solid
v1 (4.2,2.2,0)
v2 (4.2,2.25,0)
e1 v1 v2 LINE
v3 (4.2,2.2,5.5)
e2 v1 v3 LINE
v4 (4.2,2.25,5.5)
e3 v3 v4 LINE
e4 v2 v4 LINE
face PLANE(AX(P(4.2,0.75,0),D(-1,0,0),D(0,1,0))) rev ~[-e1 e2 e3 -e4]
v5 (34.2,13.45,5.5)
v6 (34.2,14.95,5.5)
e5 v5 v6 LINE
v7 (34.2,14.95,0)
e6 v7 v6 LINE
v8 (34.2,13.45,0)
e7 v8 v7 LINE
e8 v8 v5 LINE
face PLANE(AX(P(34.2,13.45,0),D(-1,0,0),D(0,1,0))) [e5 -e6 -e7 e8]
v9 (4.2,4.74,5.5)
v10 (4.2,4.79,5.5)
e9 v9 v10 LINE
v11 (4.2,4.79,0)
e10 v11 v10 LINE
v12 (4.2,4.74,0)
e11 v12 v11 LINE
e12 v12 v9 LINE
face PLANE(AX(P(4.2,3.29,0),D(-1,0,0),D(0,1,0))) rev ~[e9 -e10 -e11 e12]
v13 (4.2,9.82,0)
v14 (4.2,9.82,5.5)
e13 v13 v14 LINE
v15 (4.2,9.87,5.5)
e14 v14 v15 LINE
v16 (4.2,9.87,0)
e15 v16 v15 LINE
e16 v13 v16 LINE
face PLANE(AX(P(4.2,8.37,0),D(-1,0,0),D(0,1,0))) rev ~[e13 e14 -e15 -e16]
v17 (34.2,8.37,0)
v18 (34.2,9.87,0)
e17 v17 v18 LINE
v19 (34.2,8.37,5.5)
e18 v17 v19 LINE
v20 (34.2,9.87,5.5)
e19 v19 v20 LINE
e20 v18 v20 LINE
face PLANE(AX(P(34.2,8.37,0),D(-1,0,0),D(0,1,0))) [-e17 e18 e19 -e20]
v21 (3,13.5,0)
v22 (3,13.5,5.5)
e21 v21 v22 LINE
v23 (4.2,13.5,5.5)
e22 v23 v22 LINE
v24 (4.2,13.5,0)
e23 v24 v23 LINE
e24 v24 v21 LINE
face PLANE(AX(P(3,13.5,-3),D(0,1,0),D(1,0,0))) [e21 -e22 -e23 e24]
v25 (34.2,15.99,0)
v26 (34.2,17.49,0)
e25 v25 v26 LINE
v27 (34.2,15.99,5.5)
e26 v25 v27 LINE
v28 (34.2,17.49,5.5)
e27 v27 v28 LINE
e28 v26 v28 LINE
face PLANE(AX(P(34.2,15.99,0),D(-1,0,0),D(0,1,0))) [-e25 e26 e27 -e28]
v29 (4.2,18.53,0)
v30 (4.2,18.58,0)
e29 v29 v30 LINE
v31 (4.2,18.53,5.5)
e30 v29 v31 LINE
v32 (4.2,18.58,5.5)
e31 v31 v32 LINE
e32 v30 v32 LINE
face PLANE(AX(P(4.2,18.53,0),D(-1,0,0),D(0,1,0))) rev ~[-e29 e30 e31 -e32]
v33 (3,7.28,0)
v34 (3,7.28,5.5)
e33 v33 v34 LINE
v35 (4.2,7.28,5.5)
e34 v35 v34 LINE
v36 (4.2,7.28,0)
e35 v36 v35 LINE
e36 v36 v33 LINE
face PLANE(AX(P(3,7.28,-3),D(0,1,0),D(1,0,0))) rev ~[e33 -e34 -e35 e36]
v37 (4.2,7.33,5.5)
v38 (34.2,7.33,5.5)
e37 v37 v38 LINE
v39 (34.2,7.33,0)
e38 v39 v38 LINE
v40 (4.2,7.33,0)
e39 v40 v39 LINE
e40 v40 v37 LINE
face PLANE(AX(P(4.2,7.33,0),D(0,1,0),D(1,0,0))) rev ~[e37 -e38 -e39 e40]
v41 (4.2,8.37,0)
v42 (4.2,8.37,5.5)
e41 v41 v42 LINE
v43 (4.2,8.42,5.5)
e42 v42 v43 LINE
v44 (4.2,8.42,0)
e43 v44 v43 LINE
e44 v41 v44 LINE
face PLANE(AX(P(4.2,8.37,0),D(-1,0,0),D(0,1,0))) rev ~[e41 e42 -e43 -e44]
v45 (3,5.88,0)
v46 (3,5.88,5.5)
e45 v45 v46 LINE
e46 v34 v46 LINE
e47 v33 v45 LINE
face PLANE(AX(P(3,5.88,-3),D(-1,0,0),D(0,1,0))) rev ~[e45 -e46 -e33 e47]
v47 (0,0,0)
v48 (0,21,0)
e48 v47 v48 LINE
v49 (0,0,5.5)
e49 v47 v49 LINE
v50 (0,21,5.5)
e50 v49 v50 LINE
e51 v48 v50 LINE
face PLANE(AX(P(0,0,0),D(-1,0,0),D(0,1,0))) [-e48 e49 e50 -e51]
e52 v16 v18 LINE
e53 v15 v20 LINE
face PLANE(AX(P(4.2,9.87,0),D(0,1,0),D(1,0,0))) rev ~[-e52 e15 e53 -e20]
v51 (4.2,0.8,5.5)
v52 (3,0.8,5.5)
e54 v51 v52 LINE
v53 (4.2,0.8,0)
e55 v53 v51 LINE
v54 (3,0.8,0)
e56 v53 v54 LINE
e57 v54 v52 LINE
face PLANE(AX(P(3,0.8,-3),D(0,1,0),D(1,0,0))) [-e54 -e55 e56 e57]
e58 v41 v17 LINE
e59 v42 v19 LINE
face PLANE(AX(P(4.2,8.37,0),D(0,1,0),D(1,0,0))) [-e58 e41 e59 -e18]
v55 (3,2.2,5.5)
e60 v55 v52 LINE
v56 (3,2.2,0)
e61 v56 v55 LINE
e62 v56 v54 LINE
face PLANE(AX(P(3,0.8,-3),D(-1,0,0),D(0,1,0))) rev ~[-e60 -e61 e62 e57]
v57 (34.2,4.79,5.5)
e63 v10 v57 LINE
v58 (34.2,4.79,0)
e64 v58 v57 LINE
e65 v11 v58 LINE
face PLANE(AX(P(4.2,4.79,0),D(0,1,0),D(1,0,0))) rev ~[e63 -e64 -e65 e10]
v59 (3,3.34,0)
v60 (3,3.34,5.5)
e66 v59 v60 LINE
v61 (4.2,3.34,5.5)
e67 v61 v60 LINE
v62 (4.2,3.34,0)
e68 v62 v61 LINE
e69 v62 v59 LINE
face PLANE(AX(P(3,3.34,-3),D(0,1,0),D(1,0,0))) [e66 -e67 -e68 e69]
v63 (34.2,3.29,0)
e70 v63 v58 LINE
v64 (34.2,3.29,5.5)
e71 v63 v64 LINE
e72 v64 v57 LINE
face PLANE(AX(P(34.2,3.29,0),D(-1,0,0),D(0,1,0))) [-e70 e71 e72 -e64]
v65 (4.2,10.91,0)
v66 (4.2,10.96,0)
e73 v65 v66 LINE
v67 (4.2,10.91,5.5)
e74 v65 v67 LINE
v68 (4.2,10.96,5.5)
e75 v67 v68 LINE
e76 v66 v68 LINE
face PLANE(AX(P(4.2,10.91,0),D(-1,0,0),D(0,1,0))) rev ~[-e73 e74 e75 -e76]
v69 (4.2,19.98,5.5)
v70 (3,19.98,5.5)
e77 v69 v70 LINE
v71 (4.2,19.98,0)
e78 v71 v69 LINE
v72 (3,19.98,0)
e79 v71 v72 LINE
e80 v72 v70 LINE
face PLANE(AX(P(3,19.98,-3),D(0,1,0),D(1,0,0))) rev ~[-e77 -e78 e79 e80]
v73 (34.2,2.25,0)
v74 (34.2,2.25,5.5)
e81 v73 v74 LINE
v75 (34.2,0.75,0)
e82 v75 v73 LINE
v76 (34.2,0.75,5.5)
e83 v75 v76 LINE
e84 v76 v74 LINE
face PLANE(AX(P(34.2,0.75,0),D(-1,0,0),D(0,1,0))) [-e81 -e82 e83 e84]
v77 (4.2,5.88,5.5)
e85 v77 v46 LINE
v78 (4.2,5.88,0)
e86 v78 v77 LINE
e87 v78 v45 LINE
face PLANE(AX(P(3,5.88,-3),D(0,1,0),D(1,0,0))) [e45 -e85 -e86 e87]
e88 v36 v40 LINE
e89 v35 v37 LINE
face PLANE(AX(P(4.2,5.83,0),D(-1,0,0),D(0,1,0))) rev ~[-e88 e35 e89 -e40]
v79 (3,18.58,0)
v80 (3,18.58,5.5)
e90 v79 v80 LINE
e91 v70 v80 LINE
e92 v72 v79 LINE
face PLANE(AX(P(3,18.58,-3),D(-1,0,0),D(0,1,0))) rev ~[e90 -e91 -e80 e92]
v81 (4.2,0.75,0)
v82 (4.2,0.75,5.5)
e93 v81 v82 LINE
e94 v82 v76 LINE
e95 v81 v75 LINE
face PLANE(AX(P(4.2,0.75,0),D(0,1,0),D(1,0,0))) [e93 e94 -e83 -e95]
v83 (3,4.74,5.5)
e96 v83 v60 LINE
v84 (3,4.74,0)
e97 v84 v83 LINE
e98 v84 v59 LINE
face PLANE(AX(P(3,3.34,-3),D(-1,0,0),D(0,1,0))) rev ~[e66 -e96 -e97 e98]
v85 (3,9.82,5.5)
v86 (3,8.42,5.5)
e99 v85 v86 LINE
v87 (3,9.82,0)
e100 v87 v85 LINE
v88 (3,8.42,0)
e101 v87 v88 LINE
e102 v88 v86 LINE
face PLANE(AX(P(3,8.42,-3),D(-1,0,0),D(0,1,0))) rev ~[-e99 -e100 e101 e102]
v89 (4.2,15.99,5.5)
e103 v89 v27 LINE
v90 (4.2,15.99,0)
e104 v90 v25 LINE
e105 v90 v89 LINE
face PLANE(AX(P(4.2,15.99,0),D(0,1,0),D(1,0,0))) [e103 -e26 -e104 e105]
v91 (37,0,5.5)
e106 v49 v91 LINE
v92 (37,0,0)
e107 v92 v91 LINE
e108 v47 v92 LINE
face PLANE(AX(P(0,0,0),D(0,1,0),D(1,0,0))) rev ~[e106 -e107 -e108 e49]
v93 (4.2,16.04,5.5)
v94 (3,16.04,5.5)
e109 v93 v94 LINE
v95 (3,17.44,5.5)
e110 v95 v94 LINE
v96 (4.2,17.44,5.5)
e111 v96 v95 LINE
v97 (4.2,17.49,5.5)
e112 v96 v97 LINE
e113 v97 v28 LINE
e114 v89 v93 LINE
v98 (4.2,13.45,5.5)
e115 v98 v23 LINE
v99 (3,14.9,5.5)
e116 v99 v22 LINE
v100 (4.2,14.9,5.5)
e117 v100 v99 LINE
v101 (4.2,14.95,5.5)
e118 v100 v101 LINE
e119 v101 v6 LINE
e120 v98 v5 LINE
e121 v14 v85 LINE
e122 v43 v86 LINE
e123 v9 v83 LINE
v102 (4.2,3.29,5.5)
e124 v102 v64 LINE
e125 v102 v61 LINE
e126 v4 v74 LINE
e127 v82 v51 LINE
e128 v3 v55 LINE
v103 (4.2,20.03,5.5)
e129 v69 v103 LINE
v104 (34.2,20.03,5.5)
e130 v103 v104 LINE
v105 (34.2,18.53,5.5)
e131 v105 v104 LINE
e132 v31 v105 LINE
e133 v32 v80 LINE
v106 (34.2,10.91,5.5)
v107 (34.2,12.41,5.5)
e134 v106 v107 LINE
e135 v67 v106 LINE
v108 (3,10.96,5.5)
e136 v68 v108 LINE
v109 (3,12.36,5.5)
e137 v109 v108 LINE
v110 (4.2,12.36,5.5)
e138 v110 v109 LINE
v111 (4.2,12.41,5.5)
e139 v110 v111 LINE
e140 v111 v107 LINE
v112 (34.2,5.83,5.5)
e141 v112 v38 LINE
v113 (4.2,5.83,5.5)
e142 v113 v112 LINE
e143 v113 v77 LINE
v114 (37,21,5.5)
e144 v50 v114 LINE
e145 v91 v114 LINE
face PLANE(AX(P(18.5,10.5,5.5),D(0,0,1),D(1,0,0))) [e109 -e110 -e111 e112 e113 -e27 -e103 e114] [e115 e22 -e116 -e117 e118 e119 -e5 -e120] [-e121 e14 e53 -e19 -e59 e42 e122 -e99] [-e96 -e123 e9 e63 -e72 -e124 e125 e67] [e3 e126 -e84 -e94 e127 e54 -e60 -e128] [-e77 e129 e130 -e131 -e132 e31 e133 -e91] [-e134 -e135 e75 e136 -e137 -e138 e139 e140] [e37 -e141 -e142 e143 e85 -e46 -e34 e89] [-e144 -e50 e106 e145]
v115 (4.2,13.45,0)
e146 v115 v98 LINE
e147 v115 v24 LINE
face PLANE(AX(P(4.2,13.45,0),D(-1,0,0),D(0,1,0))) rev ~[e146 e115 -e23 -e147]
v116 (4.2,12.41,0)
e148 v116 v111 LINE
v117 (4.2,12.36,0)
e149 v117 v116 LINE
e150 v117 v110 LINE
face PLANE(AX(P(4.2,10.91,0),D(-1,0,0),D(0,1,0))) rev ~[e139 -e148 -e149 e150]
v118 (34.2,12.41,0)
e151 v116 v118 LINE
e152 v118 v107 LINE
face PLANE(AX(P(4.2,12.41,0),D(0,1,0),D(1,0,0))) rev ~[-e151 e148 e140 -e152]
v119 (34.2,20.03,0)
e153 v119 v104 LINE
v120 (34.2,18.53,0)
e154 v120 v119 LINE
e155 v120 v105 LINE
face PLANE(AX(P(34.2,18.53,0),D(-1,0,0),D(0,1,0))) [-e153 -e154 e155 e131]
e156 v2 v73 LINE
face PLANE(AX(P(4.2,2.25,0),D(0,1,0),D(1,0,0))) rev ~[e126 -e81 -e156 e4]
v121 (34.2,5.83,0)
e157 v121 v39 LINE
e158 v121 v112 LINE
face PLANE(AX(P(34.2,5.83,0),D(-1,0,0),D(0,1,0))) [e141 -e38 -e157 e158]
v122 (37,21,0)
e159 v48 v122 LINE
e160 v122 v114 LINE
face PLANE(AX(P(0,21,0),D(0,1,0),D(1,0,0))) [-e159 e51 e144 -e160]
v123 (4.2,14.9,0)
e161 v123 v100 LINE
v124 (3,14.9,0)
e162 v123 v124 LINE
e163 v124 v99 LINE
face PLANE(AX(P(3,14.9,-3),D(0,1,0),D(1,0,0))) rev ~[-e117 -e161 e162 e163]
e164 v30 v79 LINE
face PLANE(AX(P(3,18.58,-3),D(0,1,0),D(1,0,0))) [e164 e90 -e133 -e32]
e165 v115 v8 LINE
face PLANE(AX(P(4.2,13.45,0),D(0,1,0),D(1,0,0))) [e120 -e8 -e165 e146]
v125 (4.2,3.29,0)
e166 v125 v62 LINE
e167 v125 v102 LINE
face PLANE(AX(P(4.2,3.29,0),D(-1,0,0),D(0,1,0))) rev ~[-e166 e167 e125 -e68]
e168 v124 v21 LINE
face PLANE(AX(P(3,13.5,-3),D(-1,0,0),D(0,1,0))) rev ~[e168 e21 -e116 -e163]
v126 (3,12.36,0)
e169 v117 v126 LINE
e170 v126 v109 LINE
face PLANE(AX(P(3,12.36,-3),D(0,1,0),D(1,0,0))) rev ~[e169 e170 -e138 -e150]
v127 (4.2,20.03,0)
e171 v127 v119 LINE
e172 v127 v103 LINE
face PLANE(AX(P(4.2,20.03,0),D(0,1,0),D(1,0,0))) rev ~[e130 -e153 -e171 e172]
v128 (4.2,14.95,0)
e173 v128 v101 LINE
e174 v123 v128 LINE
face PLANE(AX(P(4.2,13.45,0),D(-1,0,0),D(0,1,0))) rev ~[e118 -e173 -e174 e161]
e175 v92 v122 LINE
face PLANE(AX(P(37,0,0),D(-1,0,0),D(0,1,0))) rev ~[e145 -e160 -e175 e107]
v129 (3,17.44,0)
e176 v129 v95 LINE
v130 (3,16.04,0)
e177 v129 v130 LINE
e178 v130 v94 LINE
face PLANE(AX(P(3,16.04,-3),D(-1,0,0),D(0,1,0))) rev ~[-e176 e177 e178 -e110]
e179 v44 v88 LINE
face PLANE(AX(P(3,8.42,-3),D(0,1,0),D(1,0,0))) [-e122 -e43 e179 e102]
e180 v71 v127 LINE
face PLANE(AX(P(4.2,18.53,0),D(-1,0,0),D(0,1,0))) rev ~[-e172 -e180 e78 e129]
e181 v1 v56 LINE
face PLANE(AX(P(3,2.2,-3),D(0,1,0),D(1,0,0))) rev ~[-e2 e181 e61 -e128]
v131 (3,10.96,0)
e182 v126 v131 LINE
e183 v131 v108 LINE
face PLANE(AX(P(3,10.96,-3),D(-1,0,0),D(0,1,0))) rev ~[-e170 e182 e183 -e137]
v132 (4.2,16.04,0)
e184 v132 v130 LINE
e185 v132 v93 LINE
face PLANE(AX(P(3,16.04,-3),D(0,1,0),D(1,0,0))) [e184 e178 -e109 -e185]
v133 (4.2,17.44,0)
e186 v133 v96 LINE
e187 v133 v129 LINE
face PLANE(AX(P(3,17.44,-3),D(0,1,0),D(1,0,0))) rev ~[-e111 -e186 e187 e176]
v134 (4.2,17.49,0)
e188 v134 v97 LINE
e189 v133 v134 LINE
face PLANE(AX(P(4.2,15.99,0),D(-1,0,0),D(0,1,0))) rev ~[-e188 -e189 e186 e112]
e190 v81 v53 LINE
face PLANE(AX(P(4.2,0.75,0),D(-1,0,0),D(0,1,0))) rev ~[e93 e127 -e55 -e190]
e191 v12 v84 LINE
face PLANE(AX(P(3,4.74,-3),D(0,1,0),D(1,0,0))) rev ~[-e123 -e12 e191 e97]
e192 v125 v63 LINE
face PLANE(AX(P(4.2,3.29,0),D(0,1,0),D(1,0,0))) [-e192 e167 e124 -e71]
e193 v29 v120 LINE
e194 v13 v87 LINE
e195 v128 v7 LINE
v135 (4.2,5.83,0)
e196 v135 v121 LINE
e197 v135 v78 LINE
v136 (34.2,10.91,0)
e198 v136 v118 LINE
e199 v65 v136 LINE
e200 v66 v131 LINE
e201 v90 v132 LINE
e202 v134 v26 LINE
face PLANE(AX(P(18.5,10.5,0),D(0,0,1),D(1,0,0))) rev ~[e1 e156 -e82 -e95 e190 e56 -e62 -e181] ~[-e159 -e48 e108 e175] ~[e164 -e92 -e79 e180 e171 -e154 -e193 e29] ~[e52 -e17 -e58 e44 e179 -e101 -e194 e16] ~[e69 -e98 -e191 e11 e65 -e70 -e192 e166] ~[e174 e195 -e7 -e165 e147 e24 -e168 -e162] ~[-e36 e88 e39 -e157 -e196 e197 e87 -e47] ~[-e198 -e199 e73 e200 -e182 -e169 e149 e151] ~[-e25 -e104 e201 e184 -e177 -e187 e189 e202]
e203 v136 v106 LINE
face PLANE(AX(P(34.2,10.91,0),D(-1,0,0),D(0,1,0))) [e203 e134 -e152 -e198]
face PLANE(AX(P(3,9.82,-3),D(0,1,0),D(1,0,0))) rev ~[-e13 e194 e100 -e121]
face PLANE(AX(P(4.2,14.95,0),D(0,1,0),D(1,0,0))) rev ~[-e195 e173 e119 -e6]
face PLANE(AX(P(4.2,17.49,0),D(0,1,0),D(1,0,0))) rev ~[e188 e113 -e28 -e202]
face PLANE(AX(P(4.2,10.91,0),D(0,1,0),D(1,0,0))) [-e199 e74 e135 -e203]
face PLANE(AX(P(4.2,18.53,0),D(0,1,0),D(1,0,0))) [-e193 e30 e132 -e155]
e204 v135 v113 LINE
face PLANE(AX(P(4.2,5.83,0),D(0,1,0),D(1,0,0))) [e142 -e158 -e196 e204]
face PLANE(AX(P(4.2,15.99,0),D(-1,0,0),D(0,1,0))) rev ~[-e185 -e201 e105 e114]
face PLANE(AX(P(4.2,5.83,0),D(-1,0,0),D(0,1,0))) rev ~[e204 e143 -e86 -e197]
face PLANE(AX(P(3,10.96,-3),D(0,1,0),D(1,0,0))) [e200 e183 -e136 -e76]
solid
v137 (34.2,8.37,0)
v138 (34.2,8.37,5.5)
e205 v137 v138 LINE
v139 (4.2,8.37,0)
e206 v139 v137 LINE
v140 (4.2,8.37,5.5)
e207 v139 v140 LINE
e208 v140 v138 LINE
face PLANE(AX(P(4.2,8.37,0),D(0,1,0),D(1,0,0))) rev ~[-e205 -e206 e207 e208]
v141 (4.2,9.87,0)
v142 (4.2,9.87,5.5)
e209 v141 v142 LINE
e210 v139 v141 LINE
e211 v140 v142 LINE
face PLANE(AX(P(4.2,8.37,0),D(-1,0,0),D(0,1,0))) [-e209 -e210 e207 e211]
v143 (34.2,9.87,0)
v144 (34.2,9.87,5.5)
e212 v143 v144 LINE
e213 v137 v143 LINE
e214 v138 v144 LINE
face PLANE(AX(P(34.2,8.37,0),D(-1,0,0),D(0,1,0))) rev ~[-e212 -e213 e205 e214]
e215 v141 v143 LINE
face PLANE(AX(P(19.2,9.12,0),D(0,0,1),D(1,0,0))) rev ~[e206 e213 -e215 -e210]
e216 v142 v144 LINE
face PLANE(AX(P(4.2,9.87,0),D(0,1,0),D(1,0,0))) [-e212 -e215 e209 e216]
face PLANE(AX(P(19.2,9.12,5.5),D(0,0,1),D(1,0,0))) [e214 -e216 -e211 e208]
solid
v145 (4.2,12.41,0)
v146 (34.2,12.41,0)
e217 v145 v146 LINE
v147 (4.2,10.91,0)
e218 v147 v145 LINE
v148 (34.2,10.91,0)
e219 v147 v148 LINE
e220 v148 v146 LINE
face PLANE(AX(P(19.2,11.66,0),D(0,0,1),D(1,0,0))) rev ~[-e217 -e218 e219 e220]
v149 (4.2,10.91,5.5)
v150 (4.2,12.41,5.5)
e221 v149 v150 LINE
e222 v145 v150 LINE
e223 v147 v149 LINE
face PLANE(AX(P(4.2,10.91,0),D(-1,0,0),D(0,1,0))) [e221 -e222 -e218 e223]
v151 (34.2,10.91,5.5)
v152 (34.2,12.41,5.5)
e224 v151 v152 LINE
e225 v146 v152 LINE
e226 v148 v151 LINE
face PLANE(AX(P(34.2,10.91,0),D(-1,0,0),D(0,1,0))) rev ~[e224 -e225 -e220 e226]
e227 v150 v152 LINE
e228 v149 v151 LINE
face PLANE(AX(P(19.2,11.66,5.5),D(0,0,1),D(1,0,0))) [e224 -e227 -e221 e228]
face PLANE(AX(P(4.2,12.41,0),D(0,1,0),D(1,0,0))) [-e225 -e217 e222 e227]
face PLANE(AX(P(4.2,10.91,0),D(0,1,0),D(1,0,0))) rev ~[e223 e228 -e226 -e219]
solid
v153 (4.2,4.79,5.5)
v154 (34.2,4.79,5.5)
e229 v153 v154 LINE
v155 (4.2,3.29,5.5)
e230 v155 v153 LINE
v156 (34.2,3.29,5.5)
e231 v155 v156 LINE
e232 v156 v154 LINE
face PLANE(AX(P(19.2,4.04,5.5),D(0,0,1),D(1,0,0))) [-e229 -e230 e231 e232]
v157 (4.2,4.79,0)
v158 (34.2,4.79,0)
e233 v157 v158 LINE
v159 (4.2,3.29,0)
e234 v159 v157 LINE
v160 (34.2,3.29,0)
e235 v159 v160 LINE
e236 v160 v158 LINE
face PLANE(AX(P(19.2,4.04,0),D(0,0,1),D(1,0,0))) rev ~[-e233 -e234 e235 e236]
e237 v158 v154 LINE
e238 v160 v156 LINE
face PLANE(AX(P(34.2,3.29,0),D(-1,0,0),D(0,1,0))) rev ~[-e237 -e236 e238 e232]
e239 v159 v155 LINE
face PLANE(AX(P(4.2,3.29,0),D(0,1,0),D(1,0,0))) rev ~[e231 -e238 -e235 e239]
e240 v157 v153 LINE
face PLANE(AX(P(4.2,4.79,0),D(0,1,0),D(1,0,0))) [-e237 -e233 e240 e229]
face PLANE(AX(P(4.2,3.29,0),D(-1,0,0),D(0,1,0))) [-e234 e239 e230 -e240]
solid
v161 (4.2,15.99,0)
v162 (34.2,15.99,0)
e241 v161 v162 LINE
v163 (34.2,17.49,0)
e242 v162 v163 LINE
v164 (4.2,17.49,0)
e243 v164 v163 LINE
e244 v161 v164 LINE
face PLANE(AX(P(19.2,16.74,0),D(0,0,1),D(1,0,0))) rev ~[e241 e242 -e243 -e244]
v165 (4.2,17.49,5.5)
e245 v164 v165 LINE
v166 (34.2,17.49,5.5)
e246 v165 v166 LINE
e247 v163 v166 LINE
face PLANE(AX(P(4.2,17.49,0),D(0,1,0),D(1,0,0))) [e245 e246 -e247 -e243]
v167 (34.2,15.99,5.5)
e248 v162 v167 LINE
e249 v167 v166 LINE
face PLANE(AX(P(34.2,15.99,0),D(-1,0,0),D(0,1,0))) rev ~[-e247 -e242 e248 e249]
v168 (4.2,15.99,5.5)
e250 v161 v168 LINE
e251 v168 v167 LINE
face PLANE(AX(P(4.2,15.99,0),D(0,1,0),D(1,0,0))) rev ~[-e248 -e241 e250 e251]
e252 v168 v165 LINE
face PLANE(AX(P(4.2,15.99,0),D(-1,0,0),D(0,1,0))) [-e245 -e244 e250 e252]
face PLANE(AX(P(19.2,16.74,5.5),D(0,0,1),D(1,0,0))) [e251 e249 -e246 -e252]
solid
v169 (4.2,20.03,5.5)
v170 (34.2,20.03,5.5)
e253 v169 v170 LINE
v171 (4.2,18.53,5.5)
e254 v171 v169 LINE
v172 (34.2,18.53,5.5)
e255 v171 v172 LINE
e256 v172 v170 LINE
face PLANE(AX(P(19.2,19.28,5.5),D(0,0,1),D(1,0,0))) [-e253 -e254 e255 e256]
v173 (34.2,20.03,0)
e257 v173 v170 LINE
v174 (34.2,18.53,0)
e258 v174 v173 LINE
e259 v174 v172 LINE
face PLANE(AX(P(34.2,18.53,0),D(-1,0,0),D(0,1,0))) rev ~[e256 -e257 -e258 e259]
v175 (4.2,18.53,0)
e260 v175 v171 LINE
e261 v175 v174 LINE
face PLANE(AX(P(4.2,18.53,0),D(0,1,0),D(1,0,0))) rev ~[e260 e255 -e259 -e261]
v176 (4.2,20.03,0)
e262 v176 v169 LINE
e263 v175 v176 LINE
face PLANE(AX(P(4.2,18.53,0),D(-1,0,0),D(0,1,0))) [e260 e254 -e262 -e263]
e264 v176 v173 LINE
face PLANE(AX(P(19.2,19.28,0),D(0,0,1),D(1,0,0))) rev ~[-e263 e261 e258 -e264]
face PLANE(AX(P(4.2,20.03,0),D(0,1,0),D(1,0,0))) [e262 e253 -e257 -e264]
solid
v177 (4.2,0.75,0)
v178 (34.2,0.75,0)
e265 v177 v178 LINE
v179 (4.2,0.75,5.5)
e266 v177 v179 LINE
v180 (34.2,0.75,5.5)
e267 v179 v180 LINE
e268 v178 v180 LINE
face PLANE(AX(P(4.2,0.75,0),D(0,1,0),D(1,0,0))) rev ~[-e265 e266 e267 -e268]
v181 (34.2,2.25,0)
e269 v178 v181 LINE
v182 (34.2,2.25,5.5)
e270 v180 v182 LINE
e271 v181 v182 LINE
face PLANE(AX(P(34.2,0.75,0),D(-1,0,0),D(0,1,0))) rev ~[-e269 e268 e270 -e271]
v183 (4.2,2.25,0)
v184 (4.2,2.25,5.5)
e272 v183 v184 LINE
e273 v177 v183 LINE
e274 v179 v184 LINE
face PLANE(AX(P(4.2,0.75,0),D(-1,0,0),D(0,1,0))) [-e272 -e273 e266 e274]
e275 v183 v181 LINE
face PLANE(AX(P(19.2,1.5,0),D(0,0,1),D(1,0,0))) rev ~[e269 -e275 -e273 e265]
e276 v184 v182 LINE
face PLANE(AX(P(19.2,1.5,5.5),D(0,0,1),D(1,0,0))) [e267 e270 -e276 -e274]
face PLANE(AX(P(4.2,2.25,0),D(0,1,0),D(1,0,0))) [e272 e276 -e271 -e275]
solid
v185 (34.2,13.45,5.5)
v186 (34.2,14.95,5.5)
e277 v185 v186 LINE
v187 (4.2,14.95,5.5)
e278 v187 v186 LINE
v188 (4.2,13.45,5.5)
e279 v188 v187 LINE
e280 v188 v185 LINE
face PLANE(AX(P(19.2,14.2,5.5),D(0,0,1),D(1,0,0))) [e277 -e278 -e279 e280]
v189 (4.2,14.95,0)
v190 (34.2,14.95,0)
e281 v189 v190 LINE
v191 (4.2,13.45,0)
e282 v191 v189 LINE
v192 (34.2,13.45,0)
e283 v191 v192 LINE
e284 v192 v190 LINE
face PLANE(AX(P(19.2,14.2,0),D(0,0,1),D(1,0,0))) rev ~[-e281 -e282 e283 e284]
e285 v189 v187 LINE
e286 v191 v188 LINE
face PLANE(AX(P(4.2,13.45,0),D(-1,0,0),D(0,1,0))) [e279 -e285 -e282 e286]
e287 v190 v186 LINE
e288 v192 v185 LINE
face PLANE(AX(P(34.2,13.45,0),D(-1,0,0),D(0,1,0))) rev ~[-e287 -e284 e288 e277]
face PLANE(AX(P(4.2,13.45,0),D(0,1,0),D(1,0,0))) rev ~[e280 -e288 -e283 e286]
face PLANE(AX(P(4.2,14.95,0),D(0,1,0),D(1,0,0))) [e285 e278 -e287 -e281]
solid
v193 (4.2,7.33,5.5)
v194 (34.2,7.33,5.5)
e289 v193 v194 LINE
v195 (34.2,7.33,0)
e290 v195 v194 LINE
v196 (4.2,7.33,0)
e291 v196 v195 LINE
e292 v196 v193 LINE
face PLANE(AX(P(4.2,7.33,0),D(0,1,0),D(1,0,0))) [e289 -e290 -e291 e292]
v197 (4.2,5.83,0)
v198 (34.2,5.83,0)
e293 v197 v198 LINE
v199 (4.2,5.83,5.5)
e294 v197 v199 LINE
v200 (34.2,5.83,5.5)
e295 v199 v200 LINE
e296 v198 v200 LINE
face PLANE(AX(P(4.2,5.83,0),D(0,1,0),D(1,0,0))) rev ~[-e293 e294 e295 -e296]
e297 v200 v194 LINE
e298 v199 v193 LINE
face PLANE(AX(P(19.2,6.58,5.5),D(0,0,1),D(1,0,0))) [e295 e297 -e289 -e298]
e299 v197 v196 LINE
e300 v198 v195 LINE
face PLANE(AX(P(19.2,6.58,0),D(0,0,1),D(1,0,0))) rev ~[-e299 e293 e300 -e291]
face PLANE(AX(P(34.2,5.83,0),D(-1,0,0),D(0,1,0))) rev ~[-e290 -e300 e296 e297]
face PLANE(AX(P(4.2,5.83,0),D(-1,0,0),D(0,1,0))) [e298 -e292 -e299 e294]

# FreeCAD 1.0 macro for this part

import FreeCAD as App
import Part
import Sketcher

V = App.Vector
Q = App.Units.Quantity


def add_polygon(sketch, points):
    """Adds a closed chain of lines whose ends are joined by coincident constraints."""
    first, n = sketch.GeometryCount, len(points)
    for a, b in zip(points, points[1:] + points[:1]):
        sketch.addGeometry(Part.LineSegment(App.Vector(*a, 0), App.Vector(*b, 0)), False)
    for i in range(n):
        sketch.addConstraint(Sketcher.Constraint("Coincident", first + i, 2, first + (i + 1) % n, 1))

doc = App.newDocument("Part")
body = doc.addObject("PartDesign::Body", "Body")

sketch1 = doc.addObject("Sketcher::SketchObject", "Sketch")
body.addObject(sketch1)
sketch1.AttachmentSupport = (doc.XY_Plane, [""])
sketch1.MapMode = "FlatFace"
add_polygon(sketch1, [(4.2, 4.8), (4.2, 3.3), (34.2, 3.3), (34.2, 4.8)])
sketch1.addConstraint([
    Sketcher.Constraint("Vertical", 0),
    Sketcher.Constraint("Horizontal", 1),
    Sketcher.Constraint("Vertical", 2),
    Sketcher.Constraint("Horizontal", 3),
    Sketcher.Constraint("DistanceX", 1, 1, 1, 2, Q("30 mm")),
    Sketcher.Constraint("DistanceY", 0, 2, 0, 1, Q("1.5 mm")),
    Sketcher.Constraint("DistanceX", -1, 1, 0, 2, Q("4.2 mm")),
    Sketcher.Constraint("DistanceY", -1, 1, 0, 2, Q("3.29 mm")),
])
pad1 = doc.addObject("PartDesign::Pad", "Pad")
body.addObject(pad1)
pad1.Profile = sketch1
pad1.Length = 5.5
body2 = doc.addObject("PartDesign::Body", "Body001")

sketch2 = doc.addObject("Sketcher::SketchObject", "Sketch001")
body2.addObject(sketch2)
sketch2.AttachmentSupport = (doc.getObject("XY_Plane001"), [""])
sketch2.MapMode = "FlatFace"
add_polygon(sketch2, [(4.2, 7.3), (4.2, 5.8), (34.2, 5.8), (34.2, 7.3)])
sketch2.addConstraint([
    Sketcher.Constraint("Vertical", 0),
    Sketcher.Constraint("Horizontal", 1),
    Sketcher.Constraint("Vertical", 2),
    Sketcher.Constraint("Horizontal", 3),
    Sketcher.Constraint("DistanceX", 1, 1, 1, 2, Q("30 mm")),
    Sketcher.Constraint("DistanceY", 0, 2, 0, 1, Q("1.5 mm")),
    Sketcher.Constraint("DistanceX", -1, 1, 0, 2, Q("4.2 mm")),
    Sketcher.Constraint("DistanceY", -1, 1, 0, 2, Q("5.83 mm")),
])
pad2 = doc.addObject("PartDesign::Pad", "Pad001")
body2.addObject(pad2)
pad2.Profile = sketch2
pad2.Length = 5.5
body3 = doc.addObject("PartDesign::Body", "Body002")

sketch3 = doc.addObject("Sketcher::SketchObject", "Sketch002")
body3.addObject(sketch3)
sketch3.AttachmentSupport = (doc.getObject("XY_Plane002"), [""])
sketch3.MapMode = "FlatFace"
add_polygon(sketch3, [(4.2, 9.9), (4.2, 8.4), (34.2, 8.4), (34.2, 9.9)])
sketch3.addConstraint([
    Sketcher.Constraint("Vertical", 0),
    Sketcher.Constraint("Horizontal", 1),
    Sketcher.Constraint("Vertical", 2),
    Sketcher.Constraint("Horizontal", 3),
    Sketcher.Constraint("DistanceX", 1, 1, 1, 2, Q("30 mm")),
    Sketcher.Constraint("DistanceY", 0, 2, 0, 1, Q("1.5 mm")),
    Sketcher.Constraint("DistanceX", -1, 1, 0, 2, Q("4.2 mm")),
    Sketcher.Constraint("DistanceY", -1, 1, 0, 2, Q("8.37 mm")),
])
pad3 = doc.addObject("PartDesign::Pad", "Pad002")
body3.addObject(pad3)
pad3.Profile = sketch3
pad3.Length = 5.5
body4 = doc.addObject("PartDesign::Body", "Body003")

sketch4 = doc.addObject("Sketcher::SketchObject", "Sketch003")
body4.addObject(sketch4)
sketch4.AttachmentSupport = (doc.getObject("XY_Plane003"), [""])
sketch4.MapMode = "FlatFace"
add_polygon(sketch4, [(4.2, 12.4), (4.2, 10.9), (34.2, 10.9), (34.2, 12.4)])
sketch4.addConstraint([
    Sketcher.Constraint("Vertical", 0),
    Sketcher.Constraint("Horizontal", 1),
    Sketcher.Constraint("Vertical", 2),
    Sketcher.Constraint("Horizontal", 3),
    Sketcher.Constraint("DistanceX", 1, 1, 1, 2, Q("30 mm")),
    Sketcher.Constraint("DistanceY", 0, 2, 0, 1, Q("1.5 mm")),
    Sketcher.Constraint("DistanceX", -1, 1, 0, 2, Q("4.2 mm")),
    Sketcher.Constraint("DistanceY", -1, 1, 0, 2, Q("10.91 mm")),
])
pad4 = doc.addObject("PartDesign::Pad", "Pad003")
body4.addObject(pad4)
pad4.Profile = sketch4
pad4.Length = 5.5
body5 = doc.addObject("PartDesign::Body", "Body004")

sketch5 = doc.addObject("Sketcher::SketchObject", "Sketch004")
body5.addObject(sketch5)
sketch5.AttachmentSupport = (doc.getObject("XY_Plane004"), [""])
sketch5.MapMode = "FlatFace"
add_polygon(sketch5, [(4.2, 14.9), (4.2, 13.4), (34.2, 13.4), (34.2, 14.9)])
sketch5.addConstraint([
    Sketcher.Constraint("Vertical", 0),
    Sketcher.Constraint("Horizontal", 1),
    Sketcher.Constraint("Vertical", 2),
    Sketcher.Constraint("Horizontal", 3),
    Sketcher.Constraint("DistanceX", 1, 1, 1, 2, Q("30 mm")),
    Sketcher.Constraint("DistanceY", 0, 2, 0, 1, Q("1.5 mm")),
    Sketcher.Constraint("DistanceX", -1, 1, 0, 2, Q("4.2 mm")),
    Sketcher.Constraint("DistanceY", -1, 1, 0, 2, Q("13.45 mm")),
])
pad5 = doc.addObject("PartDesign::Pad", "Pad004")
body5.addObject(pad5)
pad5.Profile = sketch5
pad5.Length = 5.5
body6 = doc.addObject("PartDesign::Body", "Body005")

sketch6 = doc.addObject("Sketcher::SketchObject", "Sketch005")
body6.addObject(sketch6)
sketch6.AttachmentSupport = (doc.getObject("XY_Plane005"), [""])
sketch6.MapMode = "FlatFace"
add_polygon(sketch6, [(4.2, 17.5), (4.2, 16), (34.2, 16), (34.2, 17.5)])
sketch6.addConstraint([
    Sketcher.Constraint("Vertical", 0),
    Sketcher.Constraint("Horizontal", 1),
    Sketcher.Constraint("Vertical", 2),
    Sketcher.Constraint("Horizontal", 3),
    Sketcher.Constraint("DistanceX", 1, 1, 1, 2, Q("30 mm")),
    Sketcher.Constraint("DistanceY", 0, 2, 0, 1, Q("1.5 mm")),
    Sketcher.Constraint("DistanceX", -1, 1, 0, 2, Q("4.2 mm")),
    Sketcher.Constraint("DistanceY", -1, 1, 0, 2, Q("15.99 mm")),
])
pad6 = doc.addObject("PartDesign::Pad", "Pad005")
body6.addObject(pad6)
pad6.Profile = sketch6
pad6.Length = 5.5
body7 = doc.addObject("PartDesign::Body", "Body006")

sketch7 = doc.addObject("Sketcher::SketchObject", "Sketch006")
body7.addObject(sketch7)
sketch7.AttachmentSupport = (doc.getObject("XY_Plane006"), [""])
sketch7.MapMode = "FlatFace"
add_polygon(sketch7, [(4.2, 20), (4.2, 18.5), (34.2, 18.5), (34.2, 20)])
sketch7.addConstraint([
    Sketcher.Constraint("Vertical", 0),
    Sketcher.Constraint("Horizontal", 1),
    Sketcher.Constraint("Vertical", 2),
    Sketcher.Constraint("Horizontal", 3),
    Sketcher.Constraint("DistanceX", 1, 1, 1, 2, Q("30 mm")),
    Sketcher.Constraint("DistanceY", 0, 2, 0, 1, Q("1.5 mm")),
    Sketcher.Constraint("DistanceX", -1, 1, 0, 2, Q("4.2 mm")),
    Sketcher.Constraint("DistanceY", -1, 1, 0, 2, Q("18.53 mm")),
])
pad7 = doc.addObject("PartDesign::Pad", "Pad006")
body7.addObject(pad7)
pad7.Profile = sketch7
pad7.Length = 5.5
body8 = doc.addObject("PartDesign::Body", "Body007")
body8.AllowCompound = True

sketch8 = doc.addObject("Sketcher::SketchObject", "Sketch007")
body8.addObject(sketch8)
sketch8.AttachmentSupport = (doc.getObject("XY_Plane007"), [""])
sketch8.MapMode = "FlatFace"
add_polygon(sketch8, [(4.2, 2.2), (4.2, 0.8), (34.2, 0.8), (34.2, 2.2)])
sketch8.addConstraint([
    Sketcher.Constraint("Vertical", 0),
    Sketcher.Constraint("Horizontal", 1),
    Sketcher.Constraint("Vertical", 2),
    Sketcher.Constraint("Horizontal", 3),
    Sketcher.Constraint("DistanceX", 1, 1, 1, 2, Q("30 mm")),
    Sketcher.Constraint("DistanceY", 0, 2, 0, 1, Q("1.5 mm")),
    Sketcher.Constraint("DistanceX", -1, 1, 0, 2, Q("4.2 mm")),
    Sketcher.Constraint("DistanceY", -1, 1, 0, 2, Q("0.75 mm")),
])
pad8 = doc.addObject("PartDesign::Pad", "Pad007")
body8.addObject(pad8)
pad8.Profile = sketch8
pad8.Length = 5.5
doc.recompute()

boolean = doc.addObject("PartDesign::Boolean", "Boolean")
body8.addObject(boolean)
boolean.Type = "Fuse"
boolean.addObjects([body])
doc.recompute()

boolean2 = doc.addObject("PartDesign::Boolean", "Boolean001")
body8.addObject(boolean2)
boolean2.Type = "Fuse"
boolean2.addObjects([body2])
doc.recompute()

boolean3 = doc.addObject("PartDesign::Boolean", "Boolean002")
body8.addObject(boolean3)
boolean3.Type = "Fuse"
boolean3.addObjects([body3])
doc.recompute()

boolean4 = doc.addObject("PartDesign::Boolean", "Boolean003")
body8.addObject(boolean4)
boolean4.Type = "Fuse"
boolean4.addObjects([body4])
doc.recompute()

boolean5 = doc.addObject("PartDesign::Boolean", "Boolean004")
body8.addObject(boolean5)
boolean5.Type = "Fuse"
boolean5.addObjects([body5])
doc.recompute()

boolean6 = doc.addObject("PartDesign::Boolean", "Boolean005")
body8.addObject(boolean6)
boolean6.Type = "Fuse"
boolean6.addObjects([body6])
doc.recompute()

boolean7 = doc.addObject("PartDesign::Boolean", "Boolean006")
body8.addObject(boolean7)
boolean7.Type = "Fuse"
boolean7.addObjects([body7])
body9 = doc.addObject("PartDesign::Body", "Body008")

sketch9 = doc.addObject("Sketcher::SketchObject", "Sketch008")
body9.addObject(sketch9)
sketch9.AttachmentSupport = (doc.getObject("XY_Plane008"), [""])
sketch9.MapMode = "FlatFace"
add_polygon(sketch9, [(4.2, 12.4), (4.2, 10.9), (34.2, 10.9), (34.2, 12.4)])
sketch9.addConstraint([
    Sketcher.Constraint("Vertical", 0),
    Sketcher.Constraint("Horizontal", 1),
    Sketcher.Constraint("Vertical", 2),
    Sketcher.Constraint("Horizontal", 3),
    Sketcher.Constraint("DistanceX", 1, 1, 1, 2, Q("30 mm")),
    Sketcher.Constraint("DistanceY", 0, 2, 0, 1, Q("1.5 mm")),
    Sketcher.Constraint("DistanceX", -1, 1, 0, 2, Q("4.2 mm")),
    Sketcher.Constraint("DistanceY", -1, 1, 0, 2, Q("10.91 mm")),
])
pad9 = doc.addObject("PartDesign::Pad", "Pad008")
body9.addObject(pad9)
pad9.Profile = sketch9
pad9.Length = 5.5
body10 = doc.addObject("PartDesign::Body", "Body009")

sketch10 = doc.addObject("Sketcher::SketchObject", "Sketch009")
body10.addObject(sketch10)
sketch10.AttachmentSupport = (doc.getObject("XY_Plane009"), [""])
sketch10.MapMode = "FlatFace"
add_polygon(sketch10, [(4.2, 4.8), (4.2, 3.3), (34.2, 3.3), (34.2, 4.8)])
sketch10.addConstraint([
    Sketcher.Constraint("Vertical", 0),
    Sketcher.Constraint("Horizontal", 1),
    Sketcher.Constraint("Vertical", 2),
    Sketcher.Constraint("Horizontal", 3),
    Sketcher.Constraint("DistanceX", 1, 1, 1, 2, Q("30 mm")),
    Sketcher.Constraint("DistanceY", 0, 2, 0, 1, Q("1.5 mm")),
    Sketcher.Constraint("DistanceX", -1, 1, 0, 2, Q("4.2 mm")),
    Sketcher.Constraint("DistanceY", -1, 1, 0, 2, Q("3.29 mm")),
])
pad10 = doc.addObject("PartDesign::Pad", "Pad009")
body10.addObject(pad10)
pad10.Profile = sketch10
pad10.Length = 5.5
body11 = doc.addObject("PartDesign::Body", "Body010")

sketch11 = doc.addObject("Sketcher::SketchObject", "Sketch010")
body11.addObject(sketch11)
sketch11.AttachmentSupport = (doc.getObject("XY_Plane010"), [""])
sketch11.MapMode = "FlatFace"
add_polygon(sketch11, [(4.2, 7.3), (4.2, 5.8), (34.2, 5.8), (34.2, 7.3)])
sketch11.addConstraint([
    Sketcher.Constraint("Vertical", 0),
    Sketcher.Constraint("Horizontal", 1),
    Sketcher.Constraint("Vertical", 2),
    Sketcher.Constraint("Horizontal", 3),
    Sketcher.Constraint("DistanceX", 1, 1, 1, 2, Q("30 mm")),
    Sketcher.Constraint("DistanceY", 0, 2, 0, 1, Q("1.5 mm")),
    Sketcher.Constraint("DistanceX", -1, 1, 0, 2, Q("4.2 mm")),
    Sketcher.Constraint("DistanceY", -1, 1, 0, 2, Q("5.83 mm")),
])
pad11 = doc.addObject("PartDesign::Pad", "Pad010")
body11.addObject(pad11)
pad11.Profile = sketch11
pad11.Length = 5.5
body12 = doc.addObject("PartDesign::Body", "Body011")

sketch12 = doc.addObject("Sketcher::SketchObject", "Sketch011")
body12.addObject(sketch12)
sketch12.AttachmentSupport = (doc.getObject("XY_Plane011"), [""])
sketch12.MapMode = "FlatFace"
add_polygon(sketch12, [(4.2, 20), (4.2, 18.5), (34.2, 18.5), (34.2, 20)])
sketch12.addConstraint([
    Sketcher.Constraint("Vertical", 0),
    Sketcher.Constraint("Horizontal", 1),
    Sketcher.Constraint("Vertical", 2),
    Sketcher.Constraint("Horizontal", 3),
    Sketcher.Constraint("DistanceX", 1, 1, 1, 2, Q("30 mm")),
    Sketcher.Constraint("DistanceY", 0, 2, 0, 1, Q("1.5 mm")),
    Sketcher.Constraint("DistanceX", -1, 1, 0, 2, Q("4.2 mm")),
    Sketcher.Constraint("DistanceY", -1, 1, 0, 2, Q("18.53 mm")),
])
pad12 = doc.addObject("PartDesign::Pad", "Pad011")
body12.addObject(pad12)
pad12.Profile = sketch12
pad12.Length = 5.5
body13 = doc.addObject("PartDesign::Body", "Body012")

sketch13 = doc.addObject("Sketcher::SketchObject", "Sketch012")
body13.addObject(sketch13)
sketch13.AttachmentSupport = (doc.getObject("XY_Plane012"), [""])
sketch13.MapMode = "FlatFace"
add_polygon(sketch13, [(4.2, 17.5), (4.2, 16), (34.2, 16), (34.2, 17.5)])
sketch13.addConstraint([
    Sketcher.Constraint("Vertical", 0),
    Sketcher.Constraint("Horizontal", 1),
    Sketcher.Constraint("Vertical", 2),
    Sketcher.Constraint("Horizontal", 3),
    Sketcher.Constraint("DistanceX", 1, 1, 1, 2, Q("30 mm")),
    Sketcher.Constraint("DistanceY", 0, 2, 0, 1, Q("1.5 mm")),
    Sketcher.Constraint("DistanceX", -1, 1, 0, 2, Q("4.2 mm")),
    Sketcher.Constraint("DistanceY", -1, 1, 0, 2, Q("15.99 mm")),
])
pad13 = doc.addObject("PartDesign::Pad", "Pad012")
body13.addObject(pad13)
pad13.Profile = sketch13
pad13.Length = 5.5
body14 = doc.addObject("PartDesign::Body", "Body013")

sketch14 = doc.addObject("Sketcher::SketchObject", "Sketch013")
body14.addObject(sketch14)
sketch14.AttachmentSupport = (doc.getObject("XY_Plane013"), [""])
sketch14.MapMode = "FlatFace"
add_polygon(sketch14, [(4.2, 9.9), (4.2, 8.4), (34.2, 8.4), (34.2, 9.9)])
sketch14.addConstraint([
    Sketcher.Constraint("Vertical", 0),
    Sketcher.Constraint("Horizontal", 1),
    Sketcher.Constraint("Vertical", 2),
    Sketcher.Constraint("Horizontal", 3),
    Sketcher.Constraint("DistanceX", 1, 1, 1, 2, Q("30 mm")),
    Sketcher.Constraint("DistanceY", 0, 2, 0, 1, Q("1.5 mm")),
    Sketcher.Constraint("DistanceX", -1, 1, 0, 2, Q("4.2 mm")),
    Sketcher.Constraint("DistanceY", -1, 1, 0, 2, Q("8.37 mm")),
])
pad14 = doc.addObject("PartDesign::Pad", "Pad013")
body14.addObject(pad14)
pad14.Profile = sketch14
pad14.Length = 5.5
body15 = doc.addObject("PartDesign::Body", "Body014")

sketch15 = doc.addObject("Sketcher::SketchObject", "Sketch014")
body15.addObject(sketch15)
sketch15.AttachmentSupport = (doc.getObject("XY_Plane014"), [""])
sketch15.MapMode = "FlatFace"
add_polygon(sketch15, [(4.2, 14.9), (4.2, 13.4), (34.2, 13.4), (34.2, 14.9)])
sketch15.addConstraint([
    Sketcher.Constraint("Vertical", 0),
    Sketcher.Constraint("Horizontal", 1),
    Sketcher.Constraint("Vertical", 2),
    Sketcher.Constraint("Horizontal", 3),
    Sketcher.Constraint("DistanceX", 1, 1, 1, 2, Q("30 mm")),
    Sketcher.Constraint("DistanceY", 0, 2, 0, 1, Q("1.5 mm")),
    Sketcher.Constraint("DistanceX", -1, 1, 0, 2, Q("4.2 mm")),
    Sketcher.Constraint("DistanceY", -1, 1, 0, 2, Q("13.45 mm")),
])
pad15 = doc.addObject("PartDesign::Pad", "Pad014")
body15.addObject(pad15)
pad15.Profile = sketch15
pad15.Length = 5.5
body16 = doc.addObject("PartDesign::Body", "Body015")
body16.AllowCompound = True

sketch16 = doc.addObject("Sketcher::SketchObject", "Sketch015")
body16.addObject(sketch16)
sketch16.AttachmentSupport = (doc.getObject("XY_Plane015"), [""])
sketch16.MapMode = "FlatFace"
add_polygon(sketch16, [(4.2, 2.2), (4.2, 0.8), (34.2, 0.8), (34.2, 2.2)])
sketch16.addConstraint([
    Sketcher.Constraint("Vertical", 0),
    Sketcher.Constraint("Horizontal", 1),
    Sketcher.Constraint("Vertical", 2),
    Sketcher.Constraint("Horizontal", 3),
    Sketcher.Constraint("DistanceX", 1, 1, 1, 2, Q("30 mm")),
    Sketcher.Constraint("DistanceY", 0, 2, 0, 1, Q("1.5 mm")),
    Sketcher.Constraint("DistanceX", -1, 1, 0, 2, Q("4.2 mm")),
    Sketcher.Constraint("DistanceY", -1, 1, 0, 2, Q("0.75 mm")),
])
pad16 = doc.addObject("PartDesign::Pad", "Pad015")
body16.addObject(pad16)
pad16.Profile = sketch16
pad16.Length = 5.5
doc.recompute()

boolean8 = doc.addObject("PartDesign::Boolean", "Boolean007")
body16.addObject(boolean8)
boolean8.Type = "Fuse"
boolean8.addObjects([body9])
doc.recompute()

boolean9 = doc.addObject("PartDesign::Boolean", "Boolean008")
body16.addObject(boolean9)
boolean9.Type = "Fuse"
boolean9.addObjects([body10])
doc.recompute()

boolean10 = doc.addObject("PartDesign::Boolean", "Boolean009")
body16.addObject(boolean10)
boolean10.Type = "Fuse"
boolean10.addObjects([body11])
doc.recompute()

boolean11 = doc.addObject("PartDesign::Boolean", "Boolean010")
body16.addObject(boolean11)
boolean11.Type = "Fuse"
boolean11.addObjects([body12])
doc.recompute()

boolean12 = doc.addObject("PartDesign::Boolean", "Boolean011")
body16.addObject(boolean12)
boolean12.Type = "Fuse"
boolean12.addObjects([body13])
doc.recompute()

boolean13 = doc.addObject("PartDesign::Boolean", "Boolean012")
body16.addObject(boolean13)
boolean13.Type = "Fuse"
boolean13.addObjects([body14])
doc.recompute()

boolean14 = doc.addObject("PartDesign::Boolean", "Boolean013")
body16.addObject(boolean14)
boolean14.Type = "Fuse"
boolean14.addObjects([body15])
body17 = doc.addObject("PartDesign::Body", "Body016")

sketch17 = doc.addObject("Sketcher::SketchObject", "Sketch016")
body17.addObject(sketch17)
sketch17.AttachmentSupport = (doc.getObject("XY_Plane016"), [""])
sketch17.MapMode = "FlatFace"
sketch17.AttachmentOffset = App.Placement(V(0, 0, -3), App.Rotation())
add_polygon(sketch17, [(3, 4.7), (3, 3.3), (4.6, 3.3), (4.6, 4.7)])
sketch17.addConstraint([
    Sketcher.Constraint("Vertical", 0),
    Sketcher.Constraint("Horizontal", 1),
    Sketcher.Constraint("Vertical", 2),
    Sketcher.Constraint("Horizontal", 3),
    Sketcher.Constraint("DistanceX", 1, 1, 1, 2, Q("1.6 mm")),
    Sketcher.Constraint("DistanceY", 0, 2, 0, 1, Q("1.4 mm")),
    Sketcher.Constraint("DistanceX", -1, 1, 0, 2, Q("3 mm")),
    Sketcher.Constraint("DistanceY", -1, 1, 0, 2, Q("3.34 mm")),
])
pad17 = doc.addObject("PartDesign::Pad", "Pad016")
body17.addObject(pad17)
pad17.Profile = sketch17
pad17.Length = 10
body18 = doc.addObject("PartDesign::Body", "Body017")

sketch18 = doc.addObject("Sketcher::SketchObject", "Sketch017")
body18.addObject(sketch18)
sketch18.AttachmentSupport = (doc.getObject("XY_Plane017"), [""])
sketch18.MapMode = "FlatFace"
sketch18.AttachmentOffset = App.Placement(V(0, 0, -3), App.Rotation())
add_polygon(sketch18, [(3, 7.3), (3, 5.9), (4.6, 5.9), (4.6, 7.3)])
sketch18.addConstraint([
    Sketcher.Constraint("Vertical", 0),
    Sketcher.Constraint("Horizontal", 1),
    Sketcher.Constraint("Vertical", 2),
    Sketcher.Constraint("Horizontal", 3),
    Sketcher.Constraint("DistanceX", 1, 1, 1, 2, Q("1.6 mm")),
    Sketcher.Constraint("DistanceY", 0, 2, 0, 1, Q("1.4 mm")),
    Sketcher.Constraint("DistanceX", -1, 1, 0, 2, Q("3 mm")),
    Sketcher.Constraint("DistanceY", -1, 1, 0, 2, Q("5.88 mm")),
])
pad18 = doc.addObject("PartDesign::Pad", "Pad017")
body18.addObject(pad18)
pad18.Profile = sketch18
pad18.Length = 10
body19 = doc.addObject("PartDesign::Body", "Body018")

sketch19 = doc.addObject("Sketcher::SketchObject", "Sketch018")
body19.addObject(sketch19)
sketch19.AttachmentSupport = (doc.getObject("XY_Plane018"), [""])
sketch19.MapMode = "FlatFace"
sketch19.AttachmentOffset = App.Placement(V(0, 0, -3), App.Rotation())
add_polygon(sketch19, [(3, 9.8), (3, 8.4), (4.6, 8.4), (4.6, 9.8)])
sketch19.addConstraint([
    Sketcher.Constraint("Vertical", 0),
    Sketcher.Constraint("Horizontal", 1),
    Sketcher.Constraint("Vertical", 2),
    Sketcher.Constraint("Horizontal", 3),
    Sketcher.Constraint("DistanceX", 1, 1, 1, 2, Q("1.6 mm")),
    Sketcher.Constraint("DistanceY", 0, 2, 0, 1, Q("1.4 mm")),
    Sketcher.Constraint("DistanceX", -1, 1, 0, 2, Q("3 mm")),
    Sketcher.Constraint("DistanceY", -1, 1, 0, 2, Q("8.42 mm")),
])
pad19 = doc.addObject("PartDesign::Pad", "Pad018")
body19.addObject(pad19)
pad19.Profile = sketch19
pad19.Length = 10
body20 = doc.addObject("PartDesign::Body", "Body019")

sketch20 = doc.addObject("Sketcher::SketchObject", "Sketch019")
body20.addObject(sketch20)
sketch20.AttachmentSupport = (doc.getObject("XY_Plane019"), [""])
sketch20.MapMode = "FlatFace"
sketch20.AttachmentOffset = App.Placement(V(0, 0, -3), App.Rotation())
add_polygon(sketch20, [(3, 12.4), (3, 11), (4.6, 11), (4.6, 12.4)])
sketch20.addConstraint([
    Sketcher.Constraint("Vertical", 0),
    Sketcher.Constraint("Horizontal", 1),
    Sketcher.Constraint("Vertical", 2),
    Sketcher.Constraint("Horizontal", 3),
    Sketcher.Constraint("DistanceX", 1, 1, 1, 2, Q("1.6 mm")),
    Sketcher.Constraint("DistanceY", 0, 2, 0, 1, Q("1.4 mm")),
    Sketcher.Constraint("DistanceX", -1, 1, 0, 2, Q("3 mm")),
    Sketcher.Constraint("DistanceY", -1, 1, 0, 2, Q("10.96 mm")),
])
pad20 = doc.addObject("PartDesign::Pad", "Pad019")
body20.addObject(pad20)
pad20.Profile = sketch20
pad20.Length = 10
body21 = doc.addObject("PartDesign::Body", "Body020")

sketch21 = doc.addObject("Sketcher::SketchObject", "Sketch020")
body21.addObject(sketch21)
sketch21.AttachmentSupport = (doc.getObject("XY_Plane020"), [""])
sketch21.MapMode = "FlatFace"
sketch21.AttachmentOffset = App.Placement(V(0, 0, -3), App.Rotation())
add_polygon(sketch21, [(3, 14.9), (3, 13.5), (4.6, 13.5), (4.6, 14.9)])
sketch21.addConstraint([
    Sketcher.Constraint("Vertical", 0),
    Sketcher.Constraint("Horizontal", 1),
    Sketcher.Constraint("Vertical", 2),
    Sketcher.Constraint("Horizontal", 3),
    Sketcher.Constraint("DistanceX", 1, 1, 1, 2, Q("1.6 mm")),
    Sketcher.Constraint("DistanceY", 0, 2, 0, 1, Q("1.4 mm")),
    Sketcher.Constraint("DistanceX", -1, 1, 0, 2, Q("3 mm")),
    Sketcher.Constraint("DistanceY", -1, 1, 0, 2, Q("13.5 mm")),
])
pad21 = doc.addObject("PartDesign::Pad", "Pad020")
body21.addObject(pad21)
pad21.Profile = sketch21
pad21.Length = 10
body22 = doc.addObject("PartDesign::Body", "Body021")

sketch22 = doc.addObject("Sketcher::SketchObject", "Sketch021")
body22.addObject(sketch22)
sketch22.AttachmentSupport = (doc.getObject("XY_Plane021"), [""])
sketch22.MapMode = "FlatFace"
sketch22.AttachmentOffset = App.Placement(V(0, 0, -3), App.Rotation())
add_polygon(sketch22, [(3, 17.4), (3, 16), (4.6, 16), (4.6, 17.4)])
sketch22.addConstraint([
    Sketcher.Constraint("Vertical", 0),
    Sketcher.Constraint("Horizontal", 1),
    Sketcher.Constraint("Vertical", 2),
    Sketcher.Constraint("Horizontal", 3),
    Sketcher.Constraint("DistanceX", 1, 1, 1, 2, Q("1.6 mm")),
    Sketcher.Constraint("DistanceY", 0, 2, 0, 1, Q("1.4 mm")),
    Sketcher.Constraint("DistanceX", -1, 1, 0, 2, Q("3 mm")),
    Sketcher.Constraint("DistanceY", -1, 1, 0, 2, Q("16.04 mm")),
])
pad22 = doc.addObject("PartDesign::Pad", "Pad021")
body22.addObject(pad22)
pad22.Profile = sketch22
pad22.Length = 10
body23 = doc.addObject("PartDesign::Body", "Body022")

sketch23 = doc.addObject("Sketcher::SketchObject", "Sketch022")
body23.addObject(sketch23)
sketch23.AttachmentSupport = (doc.getObject("XY_Plane022"), [""])
sketch23.MapMode = "FlatFace"
sketch23.AttachmentOffset = App.Placement(V(0, 0, -3), App.Rotation())
add_polygon(sketch23, [(3, 20), (3, 18.6), (4.6, 18.6), (4.6, 20)])
sketch23.addConstraint([
    Sketcher.Constraint("Vertical", 0),
    Sketcher.Constraint("Horizontal", 1),
    Sketcher.Constraint("Vertical", 2),
    Sketcher.Constraint("Horizontal", 3),
    Sketcher.Constraint("DistanceX", 1, 1, 1, 2, Q("1.6 mm")),
    Sketcher.Constraint("DistanceY", 0, 2, 0, 1, Q("1.4 mm")),
    Sketcher.Constraint("DistanceX", -1, 1, 0, 2, Q("3 mm")),
    Sketcher.Constraint("DistanceY", -1, 1, 0, 2, Q("18.58 mm")),
])
pad23 = doc.addObject("PartDesign::Pad", "Pad022")
body23.addObject(pad23)
pad23.Profile = sketch23
pad23.Length = 10
body24 = doc.addObject("PartDesign::Body", "Body023")
body24.AllowCompound = True

sketch24 = doc.addObject("Sketcher::SketchObject", "Sketch023")
body24.addObject(sketch24)
sketch24.AttachmentSupport = (doc.getObject("XY_Plane023"), [""])
sketch24.MapMode = "FlatFace"
sketch24.AttachmentOffset = App.Placement(V(0, 0, -3), App.Rotation())
add_polygon(sketch24, [(3, 2.2), (3, 0.8), (4.6, 0.8), (4.6, 2.2)])
sketch24.addConstraint([
    Sketcher.Constraint("Vertical", 0),
    Sketcher.Constraint("Horizontal", 1),
    Sketcher.Constraint("Vertical", 2),
    Sketcher.Constraint("Horizontal", 3),
    Sketcher.Constraint("DistanceX", 1, 1, 1, 2, Q("1.6 mm")),
    Sketcher.Constraint("DistanceY", 0, 2, 0, 1, Q("1.4 mm")),
    Sketcher.Constraint("DistanceX", -1, 1, 0, 2, Q("3 mm")),
    Sketcher.Constraint("DistanceY", -1, 1, 0, 2, Q("0.8 mm")),
])
pad24 = doc.addObject("PartDesign::Pad", "Pad023")
body24.addObject(pad24)
pad24.Profile = sketch24
pad24.Length = 10
doc.recompute()

boolean15 = doc.addObject("PartDesign::Boolean", "Boolean014")
body24.addObject(boolean15)
boolean15.Type = "Fuse"
boolean15.addObjects([body17])
doc.recompute()

boolean16 = doc.addObject("PartDesign::Boolean", "Boolean015")
body24.addObject(boolean16)
boolean16.Type = "Fuse"
boolean16.addObjects([body18])
doc.recompute()

boolean17 = doc.addObject("PartDesign::Boolean", "Boolean016")
body24.addObject(boolean17)
boolean17.Type = "Fuse"
boolean17.addObjects([body19])
doc.recompute()

boolean18 = doc.addObject("PartDesign::Boolean", "Boolean017")
body24.addObject(boolean18)
boolean18.Type = "Fuse"
boolean18.addObjects([body20])
doc.recompute()

boolean19 = doc.addObject("PartDesign::Boolean", "Boolean018")
body24.addObject(boolean19)
boolean19.Type = "Fuse"
boolean19.addObjects([body21])
doc.recompute()

boolean20 = doc.addObject("PartDesign::Boolean", "Boolean019")
body24.addObject(boolean20)
boolean20.Type = "Fuse"
boolean20.addObjects([body22])
doc.recompute()

boolean21 = doc.addObject("PartDesign::Boolean", "Boolean020")
body24.addObject(boolean21)
boolean21.Type = "Fuse"
boolean21.addObjects([body23])
body25 = doc.addObject("PartDesign::Body", "Body024")

sketch25 = doc.addObject("Sketcher::SketchObject", "Sketch024")
body25.addObject(sketch25)
sketch25.AttachmentSupport = (doc.getObject("XY_Plane024"), [""])
sketch25.MapMode = "FlatFace"
add_polygon(sketch25, [(0, 21), (0, 0), (37, 0), (37, 21)])
sketch25.addConstraint([
    Sketcher.Constraint("Vertical", 0),
    Sketcher.Constraint("Horizontal", 1),
    Sketcher.Constraint("Vertical", 2),
    Sketcher.Constraint("Horizontal", 3),
    Sketcher.Constraint("Coincident", 0, 2, -1, 1),
    Sketcher.Constraint("DistanceX", 1, 1, 1, 2, Q("37 mm")),
    Sketcher.Constraint("DistanceY", 0, 2, 0, 1, Q("21 mm")),
])
pad25 = doc.addObject("PartDesign::Pad", "Pad024")
body25.addObject(pad25)
pad25.Profile = sketch25
pad25.Length = 5.5
doc.recompute()

boolean22 = doc.addObject("PartDesign::Boolean", "Boolean021")
body25.addObject(boolean22)
boolean22.Type = "Cut"
boolean22.addObjects([body24])
doc.recompute()

boolean23 = doc.addObject("PartDesign::Boolean", "Boolean022")
body25.addObject(boolean23)
boolean23.Type = "Cut"
boolean23.addObjects([body16])

doc.recompute()
